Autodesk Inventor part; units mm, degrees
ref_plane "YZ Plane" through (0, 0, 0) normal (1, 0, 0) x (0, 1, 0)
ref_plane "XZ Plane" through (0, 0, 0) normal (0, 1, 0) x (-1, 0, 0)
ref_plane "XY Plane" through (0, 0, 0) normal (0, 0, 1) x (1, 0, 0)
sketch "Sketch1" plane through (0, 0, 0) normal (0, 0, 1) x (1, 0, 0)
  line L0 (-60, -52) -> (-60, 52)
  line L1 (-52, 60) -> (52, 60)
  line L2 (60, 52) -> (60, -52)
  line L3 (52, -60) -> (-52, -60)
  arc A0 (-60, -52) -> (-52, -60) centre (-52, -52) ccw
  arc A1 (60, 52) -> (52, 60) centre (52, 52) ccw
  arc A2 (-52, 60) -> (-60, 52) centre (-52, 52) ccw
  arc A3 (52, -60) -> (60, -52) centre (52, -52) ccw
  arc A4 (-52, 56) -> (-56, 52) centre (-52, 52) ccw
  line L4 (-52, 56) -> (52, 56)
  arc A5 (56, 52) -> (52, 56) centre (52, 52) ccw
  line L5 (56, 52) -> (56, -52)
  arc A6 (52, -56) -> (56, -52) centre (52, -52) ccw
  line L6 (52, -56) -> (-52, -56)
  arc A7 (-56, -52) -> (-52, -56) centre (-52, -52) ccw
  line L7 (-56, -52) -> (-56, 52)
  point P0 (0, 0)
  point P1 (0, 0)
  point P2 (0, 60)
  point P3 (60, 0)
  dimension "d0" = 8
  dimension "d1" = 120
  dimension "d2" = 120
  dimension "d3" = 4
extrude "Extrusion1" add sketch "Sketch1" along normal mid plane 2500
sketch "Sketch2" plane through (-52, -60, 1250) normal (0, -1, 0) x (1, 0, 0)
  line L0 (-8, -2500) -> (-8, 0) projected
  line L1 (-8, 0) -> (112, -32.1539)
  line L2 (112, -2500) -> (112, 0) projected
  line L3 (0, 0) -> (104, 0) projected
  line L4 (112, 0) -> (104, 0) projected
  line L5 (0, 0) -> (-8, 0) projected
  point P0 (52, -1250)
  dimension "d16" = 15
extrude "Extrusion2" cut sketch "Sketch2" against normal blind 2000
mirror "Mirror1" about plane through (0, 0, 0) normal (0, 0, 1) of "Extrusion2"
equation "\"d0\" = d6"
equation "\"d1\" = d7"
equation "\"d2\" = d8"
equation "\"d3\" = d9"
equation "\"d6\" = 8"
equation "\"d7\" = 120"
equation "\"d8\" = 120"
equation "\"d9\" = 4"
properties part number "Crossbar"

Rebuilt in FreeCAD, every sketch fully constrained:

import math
import FreeCAD as App
import Part
import Sketcher

V = App.Vector
Q = App.Units.Quantity

doc = App.newDocument("Part")
body = doc.addObject("PartDesign::Body", "Body")

# Sketch on XY plane
sketch1 = body.newObject("Sketcher::SketchObject", "Sketch")
sketch1.AttachmentSupport = (doc.getObject("XY_Plane"), [""])
sketch1.MapMode = "FlatFace"
sketch1.addGeometry(Part.LineSegment(V(-60, 52, 0), V(-60, -52, 0)), False)
sketch1.addGeometry(Part.ArcOfCircle(Part.Circle(V(-52, -52, 0), V(0, 0, 1), 8), math.radians(180), math.radians(270)), False)
sketch1.addGeometry(Part.LineSegment(V(-52, -60, 0), V(52, -60, 0)), False)
sketch1.addGeometry(Part.ArcOfCircle(Part.Circle(V(52, -52, 0), V(0, 0, 1), 8), math.radians(-90), math.radians(0)), False)
sketch1.addGeometry(Part.LineSegment(V(60, -52, 0), V(60, 52, 0)), False)
sketch1.addGeometry(Part.ArcOfCircle(Part.Circle(V(52, 52, 0), V(0, 0, 1), 8), math.radians(0), math.radians(90)), False)
sketch1.addGeometry(Part.LineSegment(V(52, 60, 0), V(-52, 60, 0)), False)
sketch1.addGeometry(Part.ArcOfCircle(Part.Circle(V(-52, 52, 0), V(0, 0, 1), 8), math.radians(90), math.radians(180)), False)
sketch1.addGeometry(Part.ArcOfCircle(Part.Circle(V(-52, 52, 0), V(0, 0, 1), 4), math.radians(90), math.radians(180)), False)
sketch1.addGeometry(Part.LineSegment(V(-52, 56, 0), V(52, 56, 0)), False)
sketch1.addGeometry(Part.ArcOfCircle(Part.Circle(V(52, 52, 0), V(0, 0, 1), 4), math.radians(0), math.radians(90)), False)
sketch1.addGeometry(Part.LineSegment(V(56, 52, 0), V(56, -52, 0)), False)
sketch1.addGeometry(Part.ArcOfCircle(Part.Circle(V(52, -52, 0), V(0, 0, 1), 4), math.radians(-90), math.radians(0)), False)
sketch1.addGeometry(Part.LineSegment(V(52, -56, 0), V(-52, -56, 0)), False)
sketch1.addGeometry(Part.ArcOfCircle(Part.Circle(V(-52, -52, 0), V(0, 0, 1), 4), math.radians(180), math.radians(270)), False)
sketch1.addGeometry(Part.LineSegment(V(-56, -52, 0), V(-56, 52, 0)), False)
sketch1.addConstraint(Sketcher.Constraint("Tangent", 0, 2, 1, 1))
sketch1.addConstraint(Sketcher.Constraint("Tangent", 1, 2, 2, 1))
sketch1.addConstraint(Sketcher.Constraint("Tangent", 2, 2, 3, 1))
sketch1.addConstraint(Sketcher.Constraint("Tangent", 3, 2, 4, 1))
sketch1.addConstraint(Sketcher.Constraint("Tangent", 4, 2, 5, 1))
sketch1.addConstraint(Sketcher.Constraint("Tangent", 5, 2, 6, 1))
sketch1.addConstraint(Sketcher.Constraint("Tangent", 6, 2, 7, 1))
sketch1.addConstraint(Sketcher.Constraint("Tangent", 7, 2, 0, 1))
sketch1.addConstraint(Sketcher.Constraint("Tangent", 8, 1, 9, 1))
sketch1.addConstraint(Sketcher.Constraint("Tangent", 9, 2, 10, 2))
sketch1.addConstraint(Sketcher.Constraint("Tangent", 10, 1, 11, 1))
sketch1.addConstraint(Sketcher.Constraint("Tangent", 11, 2, 12, 2))
sketch1.addConstraint(Sketcher.Constraint("Tangent", 12, 1, 13, 1))
sketch1.addConstraint(Sketcher.Constraint("Tangent", 13, 2, 14, 2))
sketch1.addConstraint(Sketcher.Constraint("Tangent", 14, 1, 15, 1))
sketch1.addConstraint(Sketcher.Constraint("Tangent", 15, 2, 8, 2))
sketch1.addConstraint(Sketcher.Constraint("Vertical", 0))
sketch1.addConstraint(Sketcher.Constraint("Horizontal", 2))
sketch1.addConstraint(Sketcher.Constraint("Vertical", 4))
sketch1.addConstraint(Sketcher.Constraint("Horizontal", 6))
sketch1.addConstraint(Sketcher.Constraint("Horizontal", 9))
sketch1.addConstraint(Sketcher.Constraint("Vertical", 11))
sketch1.addConstraint(Sketcher.Constraint("Horizontal", 13))
sketch1.addConstraint(Sketcher.Constraint("Vertical", 15))
sketch1.addConstraint(Sketcher.Constraint("Coincident", 8, 3, 7, 3))
sketch1.addConstraint(Sketcher.Constraint("Coincident", 10, 3, 5, 3))
sketch1.addConstraint(Sketcher.Constraint("Coincident", 12, 3, 3, 3))
sketch1.addConstraint(Sketcher.Constraint("Equal", 1, 3))
sketch1.addConstraint(Sketcher.Constraint("Equal", 3, 5))
sketch1.addConstraint(Sketcher.Constraint("Equal", 5, 7))
sketch1.addConstraint(Sketcher.Constraint("Equal", 12, 14))
sketch1.addConstraint(Sketcher.Constraint("Symmetric", 1, 3, 5, 3, -1, 1))
sketch1.addConstraint(Sketcher.Constraint("Equal", 13, 0))
sketch1.addConstraint(Sketcher.Constraint("Radius", 1, Q("8 mm")))
sketch1.addConstraint(Sketcher.Constraint("Radius", 8, Q("4 mm")))
sketch1.addConstraint(Sketcher.Constraint("DistanceX", 2, 1, 2, 2, Q("104 mm")))
pad1 = body.newObject("PartDesign::Pad", "Pad")
pad1.Profile = sketch1
pad1.Length = 2500
pad1.Midplane = True

# Sketch on XZ plane
sketch2 = body.newObject("Sketcher::SketchObject", "Sketch001")
sketch2.AttachmentSupport = (doc.getObject("XZ_Plane"), [""])
sketch2.MapMode = "FlatFace"
sketch2.AttachmentOffset = App.Placement(V(0, 0, 60), App.Rotation())
sketch2.addGeometry(Part.LineSegment(V(60, 1250, 0), V(-60, 1250, 0)), False)
sketch2.addGeometry(Part.LineSegment(V(-60, 1250, 0), V(60, 1217.8461, 0)), False)
sketch2.addGeometry(Part.LineSegment(V(60, 1217.8461, 0), V(60, 1250, 0)), False)
sketch2.addConstraint(Sketcher.Constraint("Coincident", 0, 2, 1, 1))
sketch2.addConstraint(Sketcher.Constraint("Coincident", 1, 2, 2, 1))
sketch2.addConstraint(Sketcher.Constraint("Coincident", 2, 2, 0, 1))
sketch2.addConstraint(Sketcher.Constraint("Horizontal", 0))
sketch2.addConstraint(Sketcher.Constraint("Vertical", 2))
sketch2.addConstraint(Sketcher.Constraint("Angle", 1, Q("-15 deg")))
sketch2.addConstraint(Sketcher.Constraint("DistanceX", 0, 2, 0, 1, Q("120 mm")))
sketch2.addConstraint(Sketcher.Constraint("DistanceX", 0, 2, -1, 1, Q("60 mm")))
sketch2.addConstraint(Sketcher.Constraint("DistanceY", -1, 1, 0, 2, Q("1250 mm")))
pocket1 = body.newObject("PartDesign::Pocket", "Pocket")
pocket1.Profile = sketch2
pocket1.Length = 2000
doc.recompute()

mirrored = body.newObject("PartDesign::Mirrored", "Mirrored")
mirrored.Originals = [pocket1]
mirrored.MirrorPlane = (doc.getObject("XY_Plane"), [""])
body.Tip = mirrored

doc.recompute()
